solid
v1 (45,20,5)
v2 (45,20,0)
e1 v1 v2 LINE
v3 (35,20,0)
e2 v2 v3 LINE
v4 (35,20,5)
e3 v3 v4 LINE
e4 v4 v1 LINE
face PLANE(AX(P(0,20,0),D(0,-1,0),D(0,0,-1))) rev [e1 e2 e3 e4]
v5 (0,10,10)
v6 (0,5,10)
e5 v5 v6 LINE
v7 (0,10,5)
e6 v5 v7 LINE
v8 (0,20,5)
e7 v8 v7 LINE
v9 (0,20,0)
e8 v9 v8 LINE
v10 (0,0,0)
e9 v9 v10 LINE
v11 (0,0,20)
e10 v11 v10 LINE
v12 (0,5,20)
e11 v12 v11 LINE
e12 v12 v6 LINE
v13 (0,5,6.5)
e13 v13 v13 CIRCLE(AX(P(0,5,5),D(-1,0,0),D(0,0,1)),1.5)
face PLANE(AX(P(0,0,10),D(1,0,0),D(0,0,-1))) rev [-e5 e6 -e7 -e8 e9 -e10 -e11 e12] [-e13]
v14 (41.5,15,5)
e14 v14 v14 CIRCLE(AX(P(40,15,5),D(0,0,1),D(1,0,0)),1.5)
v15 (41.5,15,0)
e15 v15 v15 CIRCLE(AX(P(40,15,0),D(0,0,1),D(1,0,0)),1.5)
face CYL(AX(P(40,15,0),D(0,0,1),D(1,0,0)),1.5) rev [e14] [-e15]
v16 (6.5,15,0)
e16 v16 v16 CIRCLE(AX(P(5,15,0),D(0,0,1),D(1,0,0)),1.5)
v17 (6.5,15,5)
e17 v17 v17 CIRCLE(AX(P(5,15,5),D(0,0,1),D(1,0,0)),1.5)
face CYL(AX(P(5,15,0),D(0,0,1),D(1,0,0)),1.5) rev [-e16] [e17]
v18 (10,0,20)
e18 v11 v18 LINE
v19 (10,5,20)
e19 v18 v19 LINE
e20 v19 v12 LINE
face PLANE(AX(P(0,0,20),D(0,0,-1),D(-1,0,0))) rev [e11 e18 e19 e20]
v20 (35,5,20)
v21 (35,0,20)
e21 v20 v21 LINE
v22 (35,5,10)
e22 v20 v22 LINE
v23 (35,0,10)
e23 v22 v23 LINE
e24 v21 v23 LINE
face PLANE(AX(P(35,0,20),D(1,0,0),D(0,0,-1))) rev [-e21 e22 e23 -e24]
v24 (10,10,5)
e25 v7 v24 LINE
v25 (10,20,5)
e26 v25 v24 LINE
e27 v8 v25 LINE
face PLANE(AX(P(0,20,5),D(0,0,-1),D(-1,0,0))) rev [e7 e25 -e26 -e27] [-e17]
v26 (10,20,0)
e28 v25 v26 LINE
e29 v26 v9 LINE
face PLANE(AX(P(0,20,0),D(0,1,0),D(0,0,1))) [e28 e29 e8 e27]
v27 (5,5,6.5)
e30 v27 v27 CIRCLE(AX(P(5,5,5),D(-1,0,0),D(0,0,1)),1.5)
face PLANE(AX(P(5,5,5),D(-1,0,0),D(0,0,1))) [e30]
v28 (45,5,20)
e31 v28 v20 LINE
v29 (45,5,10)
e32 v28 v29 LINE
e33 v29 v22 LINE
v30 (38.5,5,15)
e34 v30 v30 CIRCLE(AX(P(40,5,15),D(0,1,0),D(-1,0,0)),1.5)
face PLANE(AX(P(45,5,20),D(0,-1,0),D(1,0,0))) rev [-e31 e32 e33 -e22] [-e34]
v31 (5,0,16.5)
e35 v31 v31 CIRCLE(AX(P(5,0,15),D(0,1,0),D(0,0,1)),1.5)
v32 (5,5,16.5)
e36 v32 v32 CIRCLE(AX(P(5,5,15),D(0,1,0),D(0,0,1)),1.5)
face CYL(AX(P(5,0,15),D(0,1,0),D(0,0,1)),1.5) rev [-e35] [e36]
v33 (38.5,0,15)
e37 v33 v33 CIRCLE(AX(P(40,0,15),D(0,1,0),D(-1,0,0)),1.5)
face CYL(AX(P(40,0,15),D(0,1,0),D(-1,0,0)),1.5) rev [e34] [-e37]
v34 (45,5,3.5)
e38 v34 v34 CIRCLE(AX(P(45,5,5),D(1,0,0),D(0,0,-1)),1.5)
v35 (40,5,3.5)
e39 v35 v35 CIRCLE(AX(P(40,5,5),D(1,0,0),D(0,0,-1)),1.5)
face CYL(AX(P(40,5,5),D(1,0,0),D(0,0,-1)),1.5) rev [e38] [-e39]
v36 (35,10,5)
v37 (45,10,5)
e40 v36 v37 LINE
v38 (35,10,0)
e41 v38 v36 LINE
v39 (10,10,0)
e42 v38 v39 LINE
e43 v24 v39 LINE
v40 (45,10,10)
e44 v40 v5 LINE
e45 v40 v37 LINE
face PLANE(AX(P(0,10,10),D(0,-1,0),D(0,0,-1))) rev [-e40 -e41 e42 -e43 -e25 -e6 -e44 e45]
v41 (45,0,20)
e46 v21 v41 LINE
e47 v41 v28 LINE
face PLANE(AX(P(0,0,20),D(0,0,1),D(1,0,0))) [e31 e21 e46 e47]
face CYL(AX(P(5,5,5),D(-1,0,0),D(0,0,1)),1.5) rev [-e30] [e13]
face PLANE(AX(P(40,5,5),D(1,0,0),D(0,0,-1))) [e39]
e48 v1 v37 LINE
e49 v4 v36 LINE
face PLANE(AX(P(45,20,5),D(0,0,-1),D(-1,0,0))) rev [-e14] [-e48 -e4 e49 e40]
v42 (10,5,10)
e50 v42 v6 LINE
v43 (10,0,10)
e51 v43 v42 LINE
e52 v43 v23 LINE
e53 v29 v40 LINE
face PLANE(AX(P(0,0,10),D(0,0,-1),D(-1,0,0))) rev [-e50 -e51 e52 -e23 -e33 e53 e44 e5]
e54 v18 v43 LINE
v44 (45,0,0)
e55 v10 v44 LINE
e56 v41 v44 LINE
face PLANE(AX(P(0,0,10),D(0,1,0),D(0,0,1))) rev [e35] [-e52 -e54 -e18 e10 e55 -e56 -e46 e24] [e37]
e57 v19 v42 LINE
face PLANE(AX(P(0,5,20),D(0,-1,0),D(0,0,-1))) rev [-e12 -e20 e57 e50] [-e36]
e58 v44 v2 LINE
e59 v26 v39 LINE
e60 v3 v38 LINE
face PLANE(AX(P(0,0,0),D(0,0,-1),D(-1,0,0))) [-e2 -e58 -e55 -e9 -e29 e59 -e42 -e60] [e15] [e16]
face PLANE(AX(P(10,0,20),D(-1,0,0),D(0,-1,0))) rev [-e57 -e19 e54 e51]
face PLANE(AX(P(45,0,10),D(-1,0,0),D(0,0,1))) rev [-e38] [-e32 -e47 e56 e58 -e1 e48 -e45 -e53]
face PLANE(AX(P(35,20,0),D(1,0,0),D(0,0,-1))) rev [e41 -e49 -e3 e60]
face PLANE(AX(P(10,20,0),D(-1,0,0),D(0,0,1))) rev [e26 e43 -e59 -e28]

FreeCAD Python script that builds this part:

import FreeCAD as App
import Part
import Sketcher
Q = App.Units.Quantity


def add_polygon(sketch, points):
    """Adds a closed chain of lines whose ends are joined by coincident constraints."""
    first, n = sketch.GeometryCount, len(points)
    for a, b in zip(points, points[1:] + points[:1]):
        sketch.addGeometry(Part.LineSegment(App.Vector(*a, 0), App.Vector(*b, 0)), False)
    for i in range(n):
        sketch.addConstraint(Sketcher.Constraint("Coincident", first + i, 2, first + (i + 1) % n, 1))

doc = App.newDocument("Part")
params = doc.addObject("Spreadsheet::Sheet", "Params")
for row, (alias, value) in enumerate([
    ("sketch1_width", "45 mm"),
    ("sketch1_height", "10 mm"),
    ("pad1_length", "10 mm"),
    ("sketch2_width", "10 mm"),
    ("sketch2_height", "5 mm"),
    ("pad2_length", "10 mm"),
    ("sketch3_width", "10 mm"),
    ("sketch3_height", "5 mm"),
    ("pad3_length", "10 mm"),
    ("sketch4_diameter", "3 mm"),
    ("pocket1_length", "5 mm"),
    ("sketch5_diameter", "3 mm"),
    ("pocket2_length", "5 mm"),
    ("sketch6_diameter", "3 mm"),
    ("pocket3_length", "5 mm"),
    ("sketch7_diameter", "3 mm"),
    ("pocket4_length", "5 mm"),
    ("sketch8_diameter", "3 mm"),
    ("pocket5_length", "5 mm"),
    ("sketch9_diameter", "3 mm"),
    ("pocket6_length", "5 mm"),
], start=1):
    params.set(f"A{row}", alias)
    params.set(f"B{row}", "=" + value)
    params.setAlias(f"B{row}", alias)

body = doc.addObject("PartDesign::Body", "Body")

# Sketch on XY plane
sketch1 = body.newObject("Sketcher::SketchObject", "Sketch")
sketch1.AttachmentSupport = (doc.getObject("XY_Plane"), [""])
sketch1.MapMode = "FlatFace"
add_polygon(sketch1, [(0, 10), (0, 0), (45, 0), (45, 10)])  # lines 0-3
sketch1.addConstraint([
    Sketcher.Constraint("Vertical", 0),
    Sketcher.Constraint("Horizontal", 1),
    Sketcher.Constraint("Vertical", 2),
    Sketcher.Constraint("Horizontal", 3),
    Sketcher.Constraint("Coincident", 0, 2, -1, 1),
    Sketcher.Constraint("DistanceX", 1, 1, 1, 2, Q("45 mm")),
    Sketcher.Constraint("DistanceY", 0, 2, 0, 1, Q("10 mm")),
])
sketch1.setExpression("Constraints[9]", "Params.sketch1_width")
sketch1.setExpression("Constraints[10]", "Params.sketch1_height")
pad1 = body.newObject("PartDesign::Pad", "Pad")
pad1.Profile = sketch1
pad1.setExpression("Length", "Params.pad1_length")

# Sketch on XZ plane
sketch2 = body.newObject("Sketcher::SketchObject", "Sketch001")
sketch2.AttachmentSupport = (doc.getObject("XZ_Plane"), [""])
sketch2.MapMode = "FlatFace"
sketch2.AttachmentOffset = App.Placement(App.Vector(0, 0, -10), App.Rotation())
add_polygon(sketch2, [(0, 0), (0, 5), (10, 5), (10, 0)])  # lines 0-3
add_polygon(sketch2, [(35, 0), (35, 5), (45, 5), (45, 0)])  # lines 4-7
sketch2.addConstraint([
    Sketcher.Constraint("Vertical", 0),
    Sketcher.Constraint("Horizontal", 1),
    Sketcher.Constraint("Vertical", 2),
    Sketcher.Constraint("Horizontal", 3),
    Sketcher.Constraint("Vertical", 4),
    Sketcher.Constraint("Horizontal", 5),
    Sketcher.Constraint("Vertical", 6),
    Sketcher.Constraint("Horizontal", 7),
    Sketcher.Constraint("Coincident", 3, 2, -1, 1),
    Sketcher.Constraint("PointOnObject", 6, 2, -1),
    Sketcher.Constraint("Horizontal", 1, 2, 4, 2),
    Sketcher.Constraint("Equal", 3, 5),
    Sketcher.Constraint("DistanceX", 1, 1, 1, 2, Q("10 mm")),
    Sketcher.Constraint("DistanceY", 0, 1, 0, 2, Q("5 mm")),
    Sketcher.Constraint("DistanceX", -1, 1, 4, 2, Q("35 mm")),
])
sketch2.setExpression("Constraints[20]", "Params.sketch2_width")
sketch2.setExpression("Constraints[21]", "Params.sketch2_height")
pad2 = body.newObject("PartDesign::Pad", "Pad001")
pad2.Profile = sketch2
pad2.setExpression("Length", "Params.pad2_length")
pad2.Reversed = True

# Sketch on XY plane
sketch3 = body.newObject("Sketcher::SketchObject", "Sketch002")
sketch3.AttachmentSupport = (doc.getObject("XY_Plane"), [""])
sketch3.MapMode = "FlatFace"
sketch3.AttachmentOffset = App.Placement(App.Vector(0, 0, 10), App.Rotation())
add_polygon(sketch3, [(0, 5), (0, 0), (10, 0), (10, 5)])  # lines 0-3
add_polygon(sketch3, [(35, 5), (35, 0), (45, 0), (45, 5)])  # lines 4-7
sketch3.addConstraint([
    Sketcher.Constraint("Vertical", 0),
    Sketcher.Constraint("Horizontal", 1),
    Sketcher.Constraint("Vertical", 2),
    Sketcher.Constraint("Horizontal", 3),
    Sketcher.Constraint("Vertical", 4),
    Sketcher.Constraint("Horizontal", 5),
    Sketcher.Constraint("Vertical", 6),
    Sketcher.Constraint("Horizontal", 7),
    Sketcher.Constraint("Coincident", 0, 2, -1, 1),
    Sketcher.Constraint("PointOnObject", 4, 2, -1),
    Sketcher.Constraint("Horizontal", 3, 2, 6, 2),
    Sketcher.Constraint("Equal", 3, 5),
    Sketcher.Constraint("DistanceX", 1, 1, 1, 2, Q("10 mm")),
    Sketcher.Constraint("DistanceY", 0, 2, 0, 1, Q("5 mm")),
    Sketcher.Constraint("DistanceX", -1, 1, 4, 2, Q("35 mm")),
])
sketch3.setExpression("Constraints[20]", "Params.sketch3_width")
sketch3.setExpression("Constraints[21]", "Params.sketch3_height")
pad3 = body.newObject("PartDesign::Pad", "Pad002")
pad3.Profile = sketch3
pad3.setExpression("Length", "Params.pad3_length")

# Sketch on YZ plane
sketch4 = body.newObject("Sketcher::SketchObject", "Sketch003")
sketch4.AttachmentSupport = (doc.getObject("YZ_Plane"), [""])
sketch4.MapMode = "FlatFace"
sketch4.addGeometry(Part.Circle(App.Vector(5, 5, 0), App.Vector(0, 0, 1), 1.5), False)
sketch4.addConstraint([
    Sketcher.Constraint("Diameter", 0, Q("3 mm")),
    Sketcher.Constraint("DistanceX", -1, 1, 0, 3, Q("5 mm")),
    Sketcher.Constraint("DistanceY", -1, 1, 0, 3, Q("5 mm")),
])
sketch4.setExpression("Constraints[0]", "Params.sketch4_diameter")
pocket1 = body.newObject("PartDesign::Pocket", "Pocket")
pocket1.Profile = sketch4
pocket1.setExpression("Length", "Params.pocket1_length")
pocket1.Reversed = True

# Sketch on XY plane
sketch5 = body.newObject("Sketcher::SketchObject", "Sketch004")
sketch5.AttachmentSupport = (doc.getObject("XY_Plane"), [""])
sketch5.MapMode = "FlatFace"
sketch5.AttachmentOffset = App.Placement(App.Vector(0, 0, 5), App.Rotation())
sketch5.addGeometry(Part.Circle(App.Vector(5, 15, 0), App.Vector(0, 0, 1), 1.5), False)
sketch5.addConstraint([
    Sketcher.Constraint("Diameter", 0, Q("3 mm")),
    Sketcher.Constraint("DistanceX", -1, 1, 0, 3, Q("5 mm")),
    Sketcher.Constraint("DistanceY", -1, 1, 0, 3, Q("15 mm")),
])
sketch5.setExpression("Constraints[0]", "Params.sketch5_diameter")
pocket2 = body.newObject("PartDesign::Pocket", "Pocket001")
pocket2.Profile = sketch5
pocket2.setExpression("Length", "Params.pocket2_length")

# Sketch on XZ plane
sketch6 = body.newObject("Sketcher::SketchObject", "Sketch005")
sketch6.AttachmentSupport = (doc.getObject("XZ_Plane"), [""])
sketch6.MapMode = "FlatFace"
sketch6.AttachmentOffset = App.Placement(App.Vector(0, 0, -5), App.Rotation())
sketch6.addGeometry(Part.Circle(App.Vector(5, 15, 0), App.Vector(0, 0, 1), 1.5), False)
sketch6.addConstraint([
    Sketcher.Constraint("Diameter", 0, Q("3 mm")),
    Sketcher.Constraint("DistanceX", -1, 1, 0, 3, Q("5 mm")),
    Sketcher.Constraint("DistanceY", -1, 1, 0, 3, Q("15 mm")),
])
sketch6.setExpression("Constraints[0]", "Params.sketch6_diameter")
pocket3 = body.newObject("PartDesign::Pocket", "Pocket002")
pocket3.Profile = sketch6
pocket3.setExpression("Length", "Params.pocket3_length")
pocket3.Reversed = True

# Sketch on YZ plane
sketch7 = body.newObject("Sketcher::SketchObject", "Sketch006")
sketch7.AttachmentSupport = (doc.getObject("YZ_Plane"), [""])
sketch7.MapMode = "FlatFace"
sketch7.AttachmentOffset = App.Placement(App.Vector(0, 0, 40), App.Rotation())
sketch7.addGeometry(Part.Circle(App.Vector(5, 5, 0), App.Vector(0, 0, 1), 1.5), False)
sketch7.addConstraint([
    Sketcher.Constraint("Diameter", 0, Q("3 mm")),
    Sketcher.Constraint("DistanceX", -1, 1, 0, 3, Q("5 mm")),
    Sketcher.Constraint("DistanceY", -1, 1, 0, 3, Q("5 mm")),
])
sketch7.setExpression("Constraints[0]", "Params.sketch7_diameter")
pocket4 = body.newObject("PartDesign::Pocket", "Pocket003")
pocket4.Profile = sketch7
pocket4.setExpression("Length", "Params.pocket4_length")
pocket4.Reversed = True

# Sketch on XY plane
sketch8 = body.newObject("Sketcher::SketchObject", "Sketch007")
sketch8.AttachmentSupport = (doc.getObject("XY_Plane"), [""])
sketch8.MapMode = "FlatFace"
sketch8.AttachmentOffset = App.Placement(App.Vector(0, 0, 5), App.Rotation())
sketch8.addGeometry(Part.Circle(App.Vector(40, 15, 0), App.Vector(0, 0, 1), 1.5), False)
sketch8.addConstraint([
    Sketcher.Constraint("Diameter", 0, Q("3 mm")),
    Sketcher.Constraint("DistanceX", -1, 1, 0, 3, Q("40 mm")),
    Sketcher.Constraint("DistanceY", -1, 1, 0, 3, Q("15 mm")),
])
sketch8.setExpression("Constraints[0]", "Params.sketch8_diameter")
pocket5 = body.newObject("PartDesign::Pocket", "Pocket004")
pocket5.Profile = sketch8
pocket5.setExpression("Length", "Params.pocket5_length")

# Sketch on XZ plane
sketch9 = body.newObject("Sketcher::SketchObject", "Sketch008")
sketch9.AttachmentSupport = (doc.getObject("XZ_Plane"), [""])
sketch9.MapMode = "FlatFace"
sketch9.AttachmentOffset = App.Placement(App.Vector(0, 0, -5), App.Rotation())
sketch9.addGeometry(Part.Circle(App.Vector(40, 15, 0), App.Vector(0, 0, 1), 1.5), False)
sketch9.addConstraint([
    Sketcher.Constraint("Diameter", 0, Q("3 mm")),
    Sketcher.Constraint("DistanceX", -1, 1, 0, 3, Q("40 mm")),
    Sketcher.Constraint("DistanceY", -1, 1, 0, 3, Q("15 mm")),
])
sketch9.setExpression("Constraints[0]", "Params.sketch9_diameter")
pocket6 = body.newObject("PartDesign::Pocket", "Pocket005")
pocket6.Profile = sketch9
pocket6.setExpression("Length", "Params.pocket6_length")
pocket6.Reversed = True

doc.recompute()
